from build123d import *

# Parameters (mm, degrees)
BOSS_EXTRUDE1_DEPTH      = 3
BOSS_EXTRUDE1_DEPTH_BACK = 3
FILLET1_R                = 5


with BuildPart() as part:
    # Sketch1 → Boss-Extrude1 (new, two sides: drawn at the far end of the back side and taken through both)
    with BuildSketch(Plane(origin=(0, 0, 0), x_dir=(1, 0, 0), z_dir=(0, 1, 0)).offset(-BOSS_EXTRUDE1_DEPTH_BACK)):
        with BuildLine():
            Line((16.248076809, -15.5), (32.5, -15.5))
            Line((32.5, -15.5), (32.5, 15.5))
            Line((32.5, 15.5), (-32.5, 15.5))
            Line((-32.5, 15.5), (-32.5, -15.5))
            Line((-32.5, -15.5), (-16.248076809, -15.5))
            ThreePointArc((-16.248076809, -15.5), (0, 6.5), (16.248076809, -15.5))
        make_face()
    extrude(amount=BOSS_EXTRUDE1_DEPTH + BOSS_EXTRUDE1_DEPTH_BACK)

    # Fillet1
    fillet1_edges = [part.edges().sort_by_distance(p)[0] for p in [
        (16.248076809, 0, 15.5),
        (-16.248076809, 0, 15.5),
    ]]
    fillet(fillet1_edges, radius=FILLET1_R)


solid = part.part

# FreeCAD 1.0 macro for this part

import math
import FreeCAD as App
import Part
import Sketcher


def edges_at(feature, points):
    """Names of the edges that pass closest to the given points."""
    edges = feature.Shape.Edges
    near = lambda p: min(range(len(edges)), key=lambda i: edges[i].distToShape(Part.Vertex(*p))[0])
    return sorted({f"Edge{near(p) + 1}" for p in points})

doc = App.newDocument("Part")
body = doc.addObject("PartDesign::Body", "Body")

sketch1 = body.newObject("Sketcher::SketchObject", "Sketch")
sketch1.AttachmentSupport = (doc.getObject("XZ_Plane"), [""])
sketch1.MapMode = "FlatFace"
sketch1.addGeometry([
    Part.LineSegment(App.Vector(16, 16, 0), App.Vector(32, 16, 0)),
    Part.LineSegment(App.Vector(32, 16, 0), App.Vector(32, -16, 0)),
    Part.LineSegment(App.Vector(32, -16, 0), App.Vector(-32, -16, 0)),
    Part.LineSegment(App.Vector(-32, -16, 0), App.Vector(-32, 16, 0)),
    Part.LineSegment(App.Vector(-32, 16, 0), App.Vector(-16, 16, 0)),
    Part.ArcOfCircle(Part.Circle(App.Vector(0, 10, 0), App.Vector(0, 0, 1), 17), math.radians(163), math.radians(377)),
], False)
sketch1.addConstraint([
    Sketcher.Constraint("Coincident", 0, 2, 1, 1),
    Sketcher.Constraint("Coincident", 1, 2, 2, 1),
    Sketcher.Constraint("Coincident", 2, 2, 3, 1),
    Sketcher.Constraint("Coincident", 3, 2, 4, 1),
    Sketcher.Constraint("Coincident", 4, 2, 5, 1),
    Sketcher.Constraint("Coincident", 5, 2, 0, 1),
    Sketcher.Constraint("Horizontal", 0),
    Sketcher.Constraint("Vertical", 1),
    Sketcher.Constraint("Horizontal", 2),
    Sketcher.Constraint("Vertical", 3),
    Sketcher.Constraint("Horizontal", 4),
    Sketcher.Constraint("Symmetric", 0, 2, 2, 2, -1, 1),
    Sketcher.Constraint("Symmetric", 4, 2, 5, 2, -2),
    Sketcher.Constraint("Radius", 5, 17.0),
    Sketcher.Constraint("DistanceX", 2, 2, 2, 1, 65.0),
    Sketcher.Constraint("DistanceY", 1, 2, 1, 1, 31.0),
    Sketcher.Constraint("DistanceY", 5, 3, 0, 2, 5.0),
])
pad1 = body.newObject("PartDesign::Pad", "Pad")
pad1.Profile = sketch1
pad1.Type = "TwoLengths"
pad1.Length = 3
pad1.Length2 = 3
pad1.Reversed = True
doc.recompute()

fillet = body.newObject("PartDesign::Fillet", "Fillet")
fillet.Base = (pad1, edges_at(pad1, [(16.248, 0, 15.5), (-16.248, 0, 15.5)]))
fillet.Radius = 5

doc.recompute()
